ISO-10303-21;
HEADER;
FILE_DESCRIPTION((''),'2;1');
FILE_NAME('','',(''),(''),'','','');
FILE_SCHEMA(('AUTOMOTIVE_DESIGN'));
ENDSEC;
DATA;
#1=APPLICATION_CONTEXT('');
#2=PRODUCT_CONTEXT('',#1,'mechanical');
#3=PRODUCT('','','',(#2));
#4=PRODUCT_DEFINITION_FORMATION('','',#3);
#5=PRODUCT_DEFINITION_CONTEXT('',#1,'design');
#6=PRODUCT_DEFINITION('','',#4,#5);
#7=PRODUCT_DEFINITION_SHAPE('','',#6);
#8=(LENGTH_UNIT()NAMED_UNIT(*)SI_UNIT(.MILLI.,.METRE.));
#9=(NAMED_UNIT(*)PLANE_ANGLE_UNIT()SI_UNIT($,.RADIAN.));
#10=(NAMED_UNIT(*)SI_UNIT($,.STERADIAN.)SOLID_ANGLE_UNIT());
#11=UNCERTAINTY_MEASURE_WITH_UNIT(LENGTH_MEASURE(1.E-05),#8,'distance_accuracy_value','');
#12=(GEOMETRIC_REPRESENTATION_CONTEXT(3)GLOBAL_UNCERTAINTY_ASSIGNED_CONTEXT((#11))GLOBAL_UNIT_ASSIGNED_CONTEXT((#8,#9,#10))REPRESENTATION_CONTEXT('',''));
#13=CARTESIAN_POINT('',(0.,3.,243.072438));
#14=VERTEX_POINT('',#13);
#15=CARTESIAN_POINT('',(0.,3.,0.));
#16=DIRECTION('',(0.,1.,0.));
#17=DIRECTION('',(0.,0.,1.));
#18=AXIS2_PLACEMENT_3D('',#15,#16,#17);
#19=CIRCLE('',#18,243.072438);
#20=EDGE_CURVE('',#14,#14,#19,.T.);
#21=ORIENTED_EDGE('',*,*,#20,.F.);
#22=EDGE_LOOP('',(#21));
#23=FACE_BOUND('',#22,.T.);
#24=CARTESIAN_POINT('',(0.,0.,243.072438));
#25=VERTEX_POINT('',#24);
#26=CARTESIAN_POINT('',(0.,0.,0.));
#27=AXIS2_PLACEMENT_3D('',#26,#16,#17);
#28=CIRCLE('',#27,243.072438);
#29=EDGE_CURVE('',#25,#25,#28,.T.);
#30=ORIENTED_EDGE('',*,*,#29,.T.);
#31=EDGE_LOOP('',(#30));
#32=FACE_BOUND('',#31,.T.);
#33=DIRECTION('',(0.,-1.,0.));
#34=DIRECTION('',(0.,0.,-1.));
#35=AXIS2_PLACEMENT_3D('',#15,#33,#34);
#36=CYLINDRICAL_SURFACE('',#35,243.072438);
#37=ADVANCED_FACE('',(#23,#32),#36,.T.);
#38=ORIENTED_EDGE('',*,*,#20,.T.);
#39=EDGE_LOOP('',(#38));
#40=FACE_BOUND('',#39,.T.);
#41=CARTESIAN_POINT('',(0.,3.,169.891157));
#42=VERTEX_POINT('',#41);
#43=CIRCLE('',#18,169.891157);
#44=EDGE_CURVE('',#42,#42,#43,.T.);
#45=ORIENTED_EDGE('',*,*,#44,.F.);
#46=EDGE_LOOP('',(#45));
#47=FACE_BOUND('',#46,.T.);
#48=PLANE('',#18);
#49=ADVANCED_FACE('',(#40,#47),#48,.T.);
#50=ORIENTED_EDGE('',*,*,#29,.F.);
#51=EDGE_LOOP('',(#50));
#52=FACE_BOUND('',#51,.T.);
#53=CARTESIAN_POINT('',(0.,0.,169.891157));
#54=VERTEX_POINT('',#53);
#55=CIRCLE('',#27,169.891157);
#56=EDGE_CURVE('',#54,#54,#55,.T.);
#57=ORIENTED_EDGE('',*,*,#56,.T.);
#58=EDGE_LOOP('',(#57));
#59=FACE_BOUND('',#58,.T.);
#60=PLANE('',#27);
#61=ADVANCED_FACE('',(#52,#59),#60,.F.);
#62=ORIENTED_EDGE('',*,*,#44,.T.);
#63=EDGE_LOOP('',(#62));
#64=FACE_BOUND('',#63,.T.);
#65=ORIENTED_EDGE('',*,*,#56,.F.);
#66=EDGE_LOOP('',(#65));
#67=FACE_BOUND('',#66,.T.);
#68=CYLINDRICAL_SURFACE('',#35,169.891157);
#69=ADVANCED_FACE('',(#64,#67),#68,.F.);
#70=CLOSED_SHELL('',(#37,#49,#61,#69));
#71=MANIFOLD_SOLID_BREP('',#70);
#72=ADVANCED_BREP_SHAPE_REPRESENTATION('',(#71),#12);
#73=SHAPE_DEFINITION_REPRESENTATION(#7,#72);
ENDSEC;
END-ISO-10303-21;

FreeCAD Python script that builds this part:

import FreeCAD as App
import Part
import Sketcher
from FreeCAD import Vector

doc = App.newDocument("Part")
params = doc.addObject("Spreadsheet::Sheet", "Params")
for row, (alias, value) in enumerate([
    ("pad1_length", "3 mm"),
], start=1):
    params.set(f"A{row}", alias)
    params.set(f"B{row}", "=" + value)
    params.setAlias(f"B{row}", alias)

body = doc.addObject("PartDesign::Body", "Body")

# Sketch on XZ plane
sketch1 = doc.addObject("Sketcher::SketchObject", "Sketch")
body.addObject(sketch1)
sketch1.AttachmentSupport = (doc.XZ_Plane, [""])
sketch1.MapMode = "FlatFace"
sketch1.addGeometry([
    Part.Circle(Vector(0, 0, 0), Vector(0, 0, 1), 243),
    Part.Circle(Vector(0, 0, 0), Vector(0, 0, 1), 170),
], False)
sketch1.addConstraint([
    Sketcher.Constraint("Coincident", 0, 3, -1, 1),
    Sketcher.Constraint("Coincident", 1, 3, -1, 1),
    Sketcher.Constraint("Diameter", 0, 486.144876),
    Sketcher.Constraint("Diameter", 1, 339.782315),
])
pad1 = doc.addObject("PartDesign::Pad", "Pad")
body.addObject(pad1)
pad1.Profile = sketch1
pad1.setExpression("Length", "Params.pad1_length")
pad1.Reversed = True

doc.recompute()
